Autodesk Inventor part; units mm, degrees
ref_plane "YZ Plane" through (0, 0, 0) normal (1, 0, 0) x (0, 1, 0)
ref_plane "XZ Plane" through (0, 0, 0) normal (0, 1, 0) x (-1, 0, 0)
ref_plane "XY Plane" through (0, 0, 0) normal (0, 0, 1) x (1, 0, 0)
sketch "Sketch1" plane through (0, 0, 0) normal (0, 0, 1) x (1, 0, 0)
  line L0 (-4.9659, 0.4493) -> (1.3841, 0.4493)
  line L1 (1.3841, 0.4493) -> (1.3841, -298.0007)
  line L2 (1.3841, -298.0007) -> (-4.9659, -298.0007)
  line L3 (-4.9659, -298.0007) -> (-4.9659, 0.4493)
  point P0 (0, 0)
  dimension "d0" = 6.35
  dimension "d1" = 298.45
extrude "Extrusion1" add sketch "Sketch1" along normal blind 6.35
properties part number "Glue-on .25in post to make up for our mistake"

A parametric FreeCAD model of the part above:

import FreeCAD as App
import Part
import Sketcher

V = App.Vector
Q = App.Units.Quantity

doc = App.newDocument("Part")
body = doc.addObject("PartDesign::Body", "Body")

sketch1 = body.newObject("Sketcher::SketchObject", "Sketch")
sketch1.AttachmentSupport = (doc.getObject("XY_Plane"), [""])
sketch1.MapMode = "FlatFace"
sketch1.addGeometry(Part.LineSegment(V(1.3841, 0.4493, 0), V(-4.9659, 0.4493, 0)), False)
sketch1.addGeometry(Part.LineSegment(V(-4.9659, 0.4493, 0), V(-4.9659, -298.0007, 0)), False)
sketch1.addGeometry(Part.LineSegment(V(-4.9659, -298.0007, 0), V(1.3841, -298.0007, 0)), False)
sketch1.addGeometry(Part.LineSegment(V(1.3841, -298.0007, 0), V(1.3841, 0.4493, 0)), False)
sketch1.addConstraint(Sketcher.Constraint("Coincident", 0, 2, 1, 1))
sketch1.addConstraint(Sketcher.Constraint("Coincident", 1, 2, 2, 1))
sketch1.addConstraint(Sketcher.Constraint("Coincident", 2, 2, 3, 1))
sketch1.addConstraint(Sketcher.Constraint("Coincident", 3, 2, 0, 1))
sketch1.addConstraint(Sketcher.Constraint("Horizontal", 0))
sketch1.addConstraint(Sketcher.Constraint("Vertical", 1))
sketch1.addConstraint(Sketcher.Constraint("Horizontal", 2))
sketch1.addConstraint(Sketcher.Constraint("Vertical", 3))
sketch1.addConstraint(Sketcher.Constraint("DistanceX", 0, 2, 0, 1, Q("0.25 in")))
sketch1.addConstraint(Sketcher.Constraint("DistanceY", 1, 2, 1, 1, Q("11.75 in")))
sketch1.addConstraint(Sketcher.Constraint("DistanceX", 0, 2, -1, 1, Q("0.1955 in")))
sketch1.addConstraint(Sketcher.Constraint("DistanceY", -1, 1, 0, 2, Q("0.0177 in")))
pad1 = body.newObject("PartDesign::Pad", "Pad")
pad1.Profile = sketch1
pad1.Length = Q("0.25 in")

doc.recompute()
